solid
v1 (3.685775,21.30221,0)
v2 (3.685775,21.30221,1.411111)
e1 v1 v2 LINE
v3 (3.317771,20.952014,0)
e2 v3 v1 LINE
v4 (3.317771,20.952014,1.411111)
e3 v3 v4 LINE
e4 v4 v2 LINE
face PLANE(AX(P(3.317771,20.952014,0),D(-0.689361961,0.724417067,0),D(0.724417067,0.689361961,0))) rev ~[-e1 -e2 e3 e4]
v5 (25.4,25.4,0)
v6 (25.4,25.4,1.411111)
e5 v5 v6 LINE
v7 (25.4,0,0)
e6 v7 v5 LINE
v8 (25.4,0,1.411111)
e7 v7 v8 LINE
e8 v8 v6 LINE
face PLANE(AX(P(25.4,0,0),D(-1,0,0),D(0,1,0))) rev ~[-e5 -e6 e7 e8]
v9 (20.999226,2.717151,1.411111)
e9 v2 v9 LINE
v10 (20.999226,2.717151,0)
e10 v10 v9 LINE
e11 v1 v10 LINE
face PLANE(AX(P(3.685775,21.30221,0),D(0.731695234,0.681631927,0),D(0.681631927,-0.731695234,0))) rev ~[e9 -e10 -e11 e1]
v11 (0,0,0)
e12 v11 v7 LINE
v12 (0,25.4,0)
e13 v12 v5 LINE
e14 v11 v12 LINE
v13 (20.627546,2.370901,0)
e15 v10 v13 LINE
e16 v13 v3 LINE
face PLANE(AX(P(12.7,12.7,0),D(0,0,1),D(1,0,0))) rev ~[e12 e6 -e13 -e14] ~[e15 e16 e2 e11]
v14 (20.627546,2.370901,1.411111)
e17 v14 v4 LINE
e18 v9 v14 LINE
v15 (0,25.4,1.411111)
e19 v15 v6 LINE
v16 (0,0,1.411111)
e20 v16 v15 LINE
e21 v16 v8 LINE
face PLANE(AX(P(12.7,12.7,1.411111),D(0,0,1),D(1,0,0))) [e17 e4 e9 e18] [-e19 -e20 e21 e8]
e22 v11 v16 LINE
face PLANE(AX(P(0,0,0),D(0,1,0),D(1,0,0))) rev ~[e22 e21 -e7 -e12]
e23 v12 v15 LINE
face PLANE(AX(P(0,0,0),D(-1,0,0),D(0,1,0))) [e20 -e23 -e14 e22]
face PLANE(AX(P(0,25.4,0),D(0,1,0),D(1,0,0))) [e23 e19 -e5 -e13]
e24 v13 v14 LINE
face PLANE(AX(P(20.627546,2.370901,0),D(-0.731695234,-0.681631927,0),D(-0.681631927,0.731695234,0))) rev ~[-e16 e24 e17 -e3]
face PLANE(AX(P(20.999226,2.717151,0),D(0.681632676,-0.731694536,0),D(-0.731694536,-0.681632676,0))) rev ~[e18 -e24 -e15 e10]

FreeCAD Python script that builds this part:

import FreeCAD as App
import Part
import Sketcher

V = App.Vector
Q = App.Units.Quantity


def add_polygon(sketch, points):
    """Adds a closed chain of lines whose ends are joined by coincident constraints."""
    first, n = sketch.GeometryCount, len(points)
    for a, b in zip(points, points[1:] + points[:1]):
        sketch.addGeometry(Part.LineSegment(App.Vector(*a, 0), App.Vector(*b, 0)), False)
    for i in range(n):
        sketch.addConstraint(Sketcher.Constraint("Coincident", first + i, 2, first + (i + 1) % n, 1))

doc = App.newDocument("Part")
body = doc.addObject("PartDesign::Body", "Body")

# Sketch on XY plane
sketch1 = body.newObject("Sketcher::SketchObject", "Sketch")
sketch1.AttachmentSupport = (doc.getObject("XY_Plane"), [""])
sketch1.MapMode = "FlatFace"
add_polygon(sketch1, [(0, 25.4), (0, 0), (25.4, 0), (25.4, 25.4)])  # lines 0-3
add_polygon(sketch1, [(20.999226, 2.717151), (20.627546, 2.370901), (3.317771, 20.952014), (3.685775, 21.30221)])  # lines 4-7
sketch1.addConstraint([
    Sketcher.Constraint("Vertical", 0),
    Sketcher.Constraint("Horizontal", 1),
    Sketcher.Constraint("Vertical", 2),
    Sketcher.Constraint("Horizontal", 3),
    Sketcher.Constraint("Coincident", 0, 2, -1, 1),
    Sketcher.Constraint("DistanceX", 1, 1, 1, 2, Q("1 in")),
    Sketcher.Constraint("DistanceY", 0, 2, 0, 1, Q("1 in")),
    Sketcher.Constraint("Distance", 7, Q("1 in")),
    Sketcher.Constraint("Distance", 6, Q("0.02 in")),
    Sketcher.Constraint("DistanceY", -1, 1, 4, 2, Q("2.370901 mm")),
    Sketcher.Constraint("Distance", 4, Q("0.507972 mm")),
    Sketcher.Constraint("DistanceX", -1, 1, 5, 2, Q("3.317771 mm")),
    Sketcher.Constraint("DistanceY", -1, 1, 6, 2, Q("21.30221 mm")),
    Sketcher.Constraint("DistanceY", -1, 1, 7, 2, Q("2.717151 mm")),
    Sketcher.Constraint("Distance", 5, Q("25.394607 mm")),
])
pad1 = body.newObject("PartDesign::Pad", "Pad")
pad1.Profile = sketch1
pad1.Length = 1.411111

doc.recompute()
